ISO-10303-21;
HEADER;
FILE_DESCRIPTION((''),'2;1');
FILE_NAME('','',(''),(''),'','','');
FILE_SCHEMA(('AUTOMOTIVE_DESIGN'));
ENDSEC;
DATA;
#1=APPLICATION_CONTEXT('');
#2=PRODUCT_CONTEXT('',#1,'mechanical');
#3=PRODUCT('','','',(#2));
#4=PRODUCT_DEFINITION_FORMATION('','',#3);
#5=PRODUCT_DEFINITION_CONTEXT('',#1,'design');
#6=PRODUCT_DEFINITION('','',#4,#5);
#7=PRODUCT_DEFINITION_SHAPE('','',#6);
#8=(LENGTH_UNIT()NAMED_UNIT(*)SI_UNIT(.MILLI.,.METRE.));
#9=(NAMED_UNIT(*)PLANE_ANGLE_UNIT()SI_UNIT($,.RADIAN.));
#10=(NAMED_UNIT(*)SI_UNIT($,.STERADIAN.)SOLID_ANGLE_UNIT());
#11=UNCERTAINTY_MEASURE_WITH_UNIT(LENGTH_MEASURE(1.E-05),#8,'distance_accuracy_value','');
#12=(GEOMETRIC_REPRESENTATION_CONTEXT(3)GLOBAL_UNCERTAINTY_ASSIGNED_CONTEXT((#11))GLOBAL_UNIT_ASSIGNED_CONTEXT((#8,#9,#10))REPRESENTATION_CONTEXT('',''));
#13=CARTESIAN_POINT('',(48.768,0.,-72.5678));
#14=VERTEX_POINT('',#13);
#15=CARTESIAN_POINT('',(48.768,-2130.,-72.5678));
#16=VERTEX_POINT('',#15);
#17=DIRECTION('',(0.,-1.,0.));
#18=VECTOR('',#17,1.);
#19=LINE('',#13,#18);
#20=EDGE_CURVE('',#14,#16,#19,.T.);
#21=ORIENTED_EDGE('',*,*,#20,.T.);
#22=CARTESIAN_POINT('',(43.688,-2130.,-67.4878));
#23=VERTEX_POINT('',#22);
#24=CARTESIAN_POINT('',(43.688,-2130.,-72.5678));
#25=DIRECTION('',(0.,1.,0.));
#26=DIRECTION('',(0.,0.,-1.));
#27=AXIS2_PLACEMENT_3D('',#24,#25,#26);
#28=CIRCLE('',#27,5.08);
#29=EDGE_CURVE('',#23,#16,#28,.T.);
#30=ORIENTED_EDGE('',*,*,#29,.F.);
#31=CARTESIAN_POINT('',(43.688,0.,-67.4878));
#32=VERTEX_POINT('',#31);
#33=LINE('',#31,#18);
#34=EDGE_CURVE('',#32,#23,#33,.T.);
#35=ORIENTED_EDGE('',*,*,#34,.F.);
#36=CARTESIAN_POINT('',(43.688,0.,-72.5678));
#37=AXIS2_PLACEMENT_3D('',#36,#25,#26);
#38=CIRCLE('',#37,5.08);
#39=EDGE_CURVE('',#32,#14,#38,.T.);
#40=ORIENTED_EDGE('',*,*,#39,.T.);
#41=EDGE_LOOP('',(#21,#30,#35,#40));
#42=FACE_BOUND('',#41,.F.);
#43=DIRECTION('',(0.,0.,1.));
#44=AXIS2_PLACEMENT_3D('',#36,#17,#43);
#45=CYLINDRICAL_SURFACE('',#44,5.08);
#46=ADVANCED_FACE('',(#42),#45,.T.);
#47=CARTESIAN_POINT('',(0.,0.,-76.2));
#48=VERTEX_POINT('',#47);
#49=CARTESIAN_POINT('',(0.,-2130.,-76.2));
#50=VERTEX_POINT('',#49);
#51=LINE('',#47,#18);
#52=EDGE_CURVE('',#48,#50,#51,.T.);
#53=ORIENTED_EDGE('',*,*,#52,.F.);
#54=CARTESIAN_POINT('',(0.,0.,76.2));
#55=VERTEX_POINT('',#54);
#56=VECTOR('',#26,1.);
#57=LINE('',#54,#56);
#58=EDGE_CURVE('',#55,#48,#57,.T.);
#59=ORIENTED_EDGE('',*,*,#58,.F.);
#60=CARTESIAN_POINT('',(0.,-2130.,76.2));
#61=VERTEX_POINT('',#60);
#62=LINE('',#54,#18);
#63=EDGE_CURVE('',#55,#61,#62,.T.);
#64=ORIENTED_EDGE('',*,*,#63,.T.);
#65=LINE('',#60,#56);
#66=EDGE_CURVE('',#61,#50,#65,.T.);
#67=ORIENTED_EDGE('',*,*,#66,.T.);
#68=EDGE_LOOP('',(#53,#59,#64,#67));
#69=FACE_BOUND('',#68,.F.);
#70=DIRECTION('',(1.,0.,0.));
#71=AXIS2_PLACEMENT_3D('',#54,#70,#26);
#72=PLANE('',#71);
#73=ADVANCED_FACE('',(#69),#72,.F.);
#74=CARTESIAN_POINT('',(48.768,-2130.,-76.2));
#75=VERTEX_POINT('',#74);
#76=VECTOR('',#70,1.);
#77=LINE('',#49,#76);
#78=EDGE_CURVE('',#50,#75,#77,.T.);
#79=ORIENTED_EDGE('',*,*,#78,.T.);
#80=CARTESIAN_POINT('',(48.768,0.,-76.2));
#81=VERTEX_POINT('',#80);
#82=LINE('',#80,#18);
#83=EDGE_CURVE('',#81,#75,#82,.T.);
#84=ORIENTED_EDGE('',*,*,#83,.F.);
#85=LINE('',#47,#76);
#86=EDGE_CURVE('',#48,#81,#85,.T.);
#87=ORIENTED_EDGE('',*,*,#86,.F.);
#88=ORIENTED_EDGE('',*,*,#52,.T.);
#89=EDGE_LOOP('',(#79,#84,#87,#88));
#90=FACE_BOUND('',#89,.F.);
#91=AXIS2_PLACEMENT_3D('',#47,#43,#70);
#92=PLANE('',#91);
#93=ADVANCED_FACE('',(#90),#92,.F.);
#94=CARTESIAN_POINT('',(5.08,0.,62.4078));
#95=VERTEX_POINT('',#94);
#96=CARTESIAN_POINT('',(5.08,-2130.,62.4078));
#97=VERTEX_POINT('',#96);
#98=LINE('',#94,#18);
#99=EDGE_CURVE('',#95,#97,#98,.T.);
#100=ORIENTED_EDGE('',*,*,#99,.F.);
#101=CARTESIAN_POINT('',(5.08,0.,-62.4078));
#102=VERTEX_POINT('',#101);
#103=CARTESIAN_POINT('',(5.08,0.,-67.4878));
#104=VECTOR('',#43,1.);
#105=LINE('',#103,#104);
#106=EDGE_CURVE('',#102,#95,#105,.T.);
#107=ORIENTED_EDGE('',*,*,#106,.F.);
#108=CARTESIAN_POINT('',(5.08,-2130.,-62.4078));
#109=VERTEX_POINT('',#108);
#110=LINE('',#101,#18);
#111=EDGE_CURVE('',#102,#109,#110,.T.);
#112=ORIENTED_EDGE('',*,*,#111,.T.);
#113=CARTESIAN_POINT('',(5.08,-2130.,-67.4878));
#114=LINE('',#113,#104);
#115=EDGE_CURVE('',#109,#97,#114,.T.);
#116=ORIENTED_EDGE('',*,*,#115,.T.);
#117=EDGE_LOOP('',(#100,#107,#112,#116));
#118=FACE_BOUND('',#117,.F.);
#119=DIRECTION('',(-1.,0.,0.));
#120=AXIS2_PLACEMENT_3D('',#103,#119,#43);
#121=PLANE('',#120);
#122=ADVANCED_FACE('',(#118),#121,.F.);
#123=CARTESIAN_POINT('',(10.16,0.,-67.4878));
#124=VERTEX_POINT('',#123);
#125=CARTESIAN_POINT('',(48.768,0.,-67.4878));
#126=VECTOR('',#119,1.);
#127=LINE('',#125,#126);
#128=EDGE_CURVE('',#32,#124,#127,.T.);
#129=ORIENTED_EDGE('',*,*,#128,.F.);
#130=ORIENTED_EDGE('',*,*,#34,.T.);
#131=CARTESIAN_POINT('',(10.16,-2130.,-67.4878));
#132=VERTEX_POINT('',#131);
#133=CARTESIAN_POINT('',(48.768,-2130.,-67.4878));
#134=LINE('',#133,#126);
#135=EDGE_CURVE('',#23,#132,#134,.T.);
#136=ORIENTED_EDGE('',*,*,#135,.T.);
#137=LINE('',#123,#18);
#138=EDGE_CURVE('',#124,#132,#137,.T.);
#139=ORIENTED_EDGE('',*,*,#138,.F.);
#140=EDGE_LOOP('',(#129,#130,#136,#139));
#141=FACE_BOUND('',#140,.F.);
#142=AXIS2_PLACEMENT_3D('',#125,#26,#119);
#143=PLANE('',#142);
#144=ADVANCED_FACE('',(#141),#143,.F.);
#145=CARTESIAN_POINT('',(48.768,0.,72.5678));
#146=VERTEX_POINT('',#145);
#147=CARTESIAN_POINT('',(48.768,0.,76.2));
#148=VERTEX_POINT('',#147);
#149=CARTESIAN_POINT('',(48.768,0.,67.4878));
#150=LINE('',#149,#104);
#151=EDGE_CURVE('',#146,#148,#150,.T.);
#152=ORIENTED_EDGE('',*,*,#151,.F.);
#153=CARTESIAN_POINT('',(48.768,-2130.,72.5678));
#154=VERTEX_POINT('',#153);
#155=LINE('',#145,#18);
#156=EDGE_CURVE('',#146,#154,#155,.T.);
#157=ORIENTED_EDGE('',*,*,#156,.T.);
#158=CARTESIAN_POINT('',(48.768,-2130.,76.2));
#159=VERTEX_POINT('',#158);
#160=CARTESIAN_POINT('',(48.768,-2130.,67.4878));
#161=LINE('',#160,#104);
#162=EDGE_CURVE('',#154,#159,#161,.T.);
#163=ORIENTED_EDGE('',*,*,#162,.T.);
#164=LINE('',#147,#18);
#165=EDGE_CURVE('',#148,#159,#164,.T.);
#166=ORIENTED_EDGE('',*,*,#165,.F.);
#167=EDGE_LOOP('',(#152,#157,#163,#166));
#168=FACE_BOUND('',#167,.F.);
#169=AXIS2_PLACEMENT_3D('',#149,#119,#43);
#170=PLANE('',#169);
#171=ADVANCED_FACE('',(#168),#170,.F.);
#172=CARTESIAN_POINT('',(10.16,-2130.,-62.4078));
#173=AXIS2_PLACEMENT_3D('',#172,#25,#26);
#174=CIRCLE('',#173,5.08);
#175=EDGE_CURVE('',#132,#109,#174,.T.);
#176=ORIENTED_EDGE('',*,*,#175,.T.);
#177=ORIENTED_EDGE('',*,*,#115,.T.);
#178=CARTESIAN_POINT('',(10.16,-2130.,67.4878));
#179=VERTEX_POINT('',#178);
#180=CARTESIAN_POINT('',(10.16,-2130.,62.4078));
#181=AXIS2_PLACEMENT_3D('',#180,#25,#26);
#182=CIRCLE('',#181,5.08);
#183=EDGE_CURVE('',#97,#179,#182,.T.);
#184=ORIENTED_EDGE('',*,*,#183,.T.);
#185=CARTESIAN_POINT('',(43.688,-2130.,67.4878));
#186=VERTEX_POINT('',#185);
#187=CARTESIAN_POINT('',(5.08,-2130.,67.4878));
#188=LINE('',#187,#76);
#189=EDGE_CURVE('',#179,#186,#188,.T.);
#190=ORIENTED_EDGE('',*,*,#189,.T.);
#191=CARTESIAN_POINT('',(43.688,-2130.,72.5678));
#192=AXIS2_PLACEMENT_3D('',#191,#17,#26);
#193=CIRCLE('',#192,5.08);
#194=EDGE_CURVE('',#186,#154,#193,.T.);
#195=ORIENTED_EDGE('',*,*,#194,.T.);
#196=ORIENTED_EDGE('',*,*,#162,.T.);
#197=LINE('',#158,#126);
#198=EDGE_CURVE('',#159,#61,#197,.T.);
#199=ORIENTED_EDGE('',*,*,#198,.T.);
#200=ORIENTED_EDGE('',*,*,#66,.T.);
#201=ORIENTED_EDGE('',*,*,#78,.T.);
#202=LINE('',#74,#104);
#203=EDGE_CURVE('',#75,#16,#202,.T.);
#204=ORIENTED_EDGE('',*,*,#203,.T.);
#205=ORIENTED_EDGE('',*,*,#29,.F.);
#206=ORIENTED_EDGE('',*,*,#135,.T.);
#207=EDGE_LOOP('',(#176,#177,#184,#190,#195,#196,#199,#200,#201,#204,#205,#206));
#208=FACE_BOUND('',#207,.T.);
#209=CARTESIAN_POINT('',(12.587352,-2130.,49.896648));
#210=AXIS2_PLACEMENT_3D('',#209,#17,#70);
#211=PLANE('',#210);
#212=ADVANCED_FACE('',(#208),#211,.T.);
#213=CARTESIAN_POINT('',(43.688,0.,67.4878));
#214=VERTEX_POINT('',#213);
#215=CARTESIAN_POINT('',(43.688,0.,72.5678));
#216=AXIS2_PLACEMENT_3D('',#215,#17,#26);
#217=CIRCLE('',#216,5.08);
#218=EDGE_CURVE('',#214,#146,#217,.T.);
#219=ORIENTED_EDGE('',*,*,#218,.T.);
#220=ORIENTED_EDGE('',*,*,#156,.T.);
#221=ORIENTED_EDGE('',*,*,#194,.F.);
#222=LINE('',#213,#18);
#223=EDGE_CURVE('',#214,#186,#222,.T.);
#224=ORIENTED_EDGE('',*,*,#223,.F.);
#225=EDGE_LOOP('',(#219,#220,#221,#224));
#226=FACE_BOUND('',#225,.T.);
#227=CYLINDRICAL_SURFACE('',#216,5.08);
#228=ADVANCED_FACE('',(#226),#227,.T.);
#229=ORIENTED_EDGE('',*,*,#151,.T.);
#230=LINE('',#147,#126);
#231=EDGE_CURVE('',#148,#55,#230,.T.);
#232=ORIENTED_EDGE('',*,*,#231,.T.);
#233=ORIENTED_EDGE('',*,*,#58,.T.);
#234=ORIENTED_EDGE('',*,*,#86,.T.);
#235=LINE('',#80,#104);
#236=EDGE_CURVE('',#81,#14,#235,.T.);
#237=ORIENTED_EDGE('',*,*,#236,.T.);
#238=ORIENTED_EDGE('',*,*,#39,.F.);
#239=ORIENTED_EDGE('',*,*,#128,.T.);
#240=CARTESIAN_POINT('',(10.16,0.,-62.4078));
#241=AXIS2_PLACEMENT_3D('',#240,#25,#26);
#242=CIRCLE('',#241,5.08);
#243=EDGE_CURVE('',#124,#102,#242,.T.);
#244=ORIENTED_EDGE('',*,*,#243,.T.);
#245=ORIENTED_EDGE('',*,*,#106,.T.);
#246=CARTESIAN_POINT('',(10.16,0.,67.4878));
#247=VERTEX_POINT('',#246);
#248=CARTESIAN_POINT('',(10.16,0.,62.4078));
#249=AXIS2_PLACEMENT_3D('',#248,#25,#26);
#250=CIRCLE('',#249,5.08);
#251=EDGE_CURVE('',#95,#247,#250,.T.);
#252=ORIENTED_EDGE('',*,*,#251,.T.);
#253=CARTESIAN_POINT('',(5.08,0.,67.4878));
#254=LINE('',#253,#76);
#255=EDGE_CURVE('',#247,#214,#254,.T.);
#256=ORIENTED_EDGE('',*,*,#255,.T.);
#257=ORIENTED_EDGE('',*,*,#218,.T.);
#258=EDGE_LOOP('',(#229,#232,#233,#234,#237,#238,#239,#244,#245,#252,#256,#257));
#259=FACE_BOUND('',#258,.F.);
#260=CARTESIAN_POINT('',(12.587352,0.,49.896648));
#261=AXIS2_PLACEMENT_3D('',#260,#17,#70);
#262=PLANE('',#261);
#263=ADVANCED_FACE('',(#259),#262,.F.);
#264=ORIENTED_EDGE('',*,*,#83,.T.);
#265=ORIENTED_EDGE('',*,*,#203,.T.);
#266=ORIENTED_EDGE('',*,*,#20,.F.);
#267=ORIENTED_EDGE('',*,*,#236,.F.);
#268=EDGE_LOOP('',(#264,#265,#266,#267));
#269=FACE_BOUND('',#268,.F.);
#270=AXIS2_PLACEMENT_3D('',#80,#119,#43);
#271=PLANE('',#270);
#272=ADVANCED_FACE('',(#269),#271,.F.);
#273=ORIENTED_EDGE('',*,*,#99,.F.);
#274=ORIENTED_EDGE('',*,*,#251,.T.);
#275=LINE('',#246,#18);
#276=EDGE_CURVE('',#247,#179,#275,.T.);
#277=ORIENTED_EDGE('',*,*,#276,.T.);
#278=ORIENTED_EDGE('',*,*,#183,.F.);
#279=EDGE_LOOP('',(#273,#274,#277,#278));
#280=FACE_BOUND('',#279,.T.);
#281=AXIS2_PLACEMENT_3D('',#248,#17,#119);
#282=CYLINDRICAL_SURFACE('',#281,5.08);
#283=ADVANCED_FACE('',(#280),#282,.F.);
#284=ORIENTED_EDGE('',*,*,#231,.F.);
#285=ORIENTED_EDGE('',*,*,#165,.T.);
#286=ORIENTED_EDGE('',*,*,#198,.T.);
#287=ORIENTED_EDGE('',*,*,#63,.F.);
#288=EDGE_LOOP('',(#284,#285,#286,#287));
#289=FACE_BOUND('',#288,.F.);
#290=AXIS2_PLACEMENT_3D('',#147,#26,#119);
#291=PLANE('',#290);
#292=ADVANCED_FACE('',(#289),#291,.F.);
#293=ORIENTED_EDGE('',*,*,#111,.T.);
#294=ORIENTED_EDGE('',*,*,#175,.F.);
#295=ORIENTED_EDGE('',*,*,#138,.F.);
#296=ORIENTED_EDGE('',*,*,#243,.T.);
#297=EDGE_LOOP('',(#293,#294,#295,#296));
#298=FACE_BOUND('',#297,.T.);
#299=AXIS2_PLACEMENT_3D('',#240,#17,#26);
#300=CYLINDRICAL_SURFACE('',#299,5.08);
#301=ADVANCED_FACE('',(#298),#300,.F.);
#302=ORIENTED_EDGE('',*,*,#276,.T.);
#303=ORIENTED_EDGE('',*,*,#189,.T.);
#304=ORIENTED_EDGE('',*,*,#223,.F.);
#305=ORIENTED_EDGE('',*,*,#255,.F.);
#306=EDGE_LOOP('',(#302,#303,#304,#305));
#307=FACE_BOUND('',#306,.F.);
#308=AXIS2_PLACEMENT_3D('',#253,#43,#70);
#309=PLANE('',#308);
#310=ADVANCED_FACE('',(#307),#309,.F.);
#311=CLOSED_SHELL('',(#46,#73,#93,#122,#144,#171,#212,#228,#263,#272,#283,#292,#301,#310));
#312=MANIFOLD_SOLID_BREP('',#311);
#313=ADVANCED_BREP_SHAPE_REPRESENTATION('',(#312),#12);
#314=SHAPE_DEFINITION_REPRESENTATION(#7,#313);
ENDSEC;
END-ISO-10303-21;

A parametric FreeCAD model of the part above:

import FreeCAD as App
import Part
import Sketcher
Q = App.Units.Quantity


def edges_at(feature, points):
    """Names of the edges that pass closest to the given points."""
    edges = feature.Shape.Edges
    near = lambda p: min(range(len(edges)), key=lambda i: edges[i].distToShape(Part.Vertex(*p))[0])
    return sorted({f"Edge{near(p) + 1}" for p in points})

doc = App.newDocument("Part")
body = doc.addObject("PartDesign::Body", "Body")

# Sketch on XZ plane
sketch1 = body.newObject("Sketcher::SketchObject", "Sketch")
sketch1.AttachmentSupport = (doc.getObject("XZ_Plane"), [""])
sketch1.MapMode = "FlatFace"
sketch1.addGeometry(Part.LineSegment(App.Vector(48.768, 76.2, 0), App.Vector(0, 76.2, 0)), False)
sketch1.addGeometry(Part.LineSegment(App.Vector(0, 76.2, 0), App.Vector(0, -76.2, 0)), False)
sketch1.addGeometry(Part.LineSegment(App.Vector(0, -76.2, 0), App.Vector(48.768, -76.2, 0)), False)
sketch1.addGeometry(Part.LineSegment(App.Vector(48.768, -76.2, 0), App.Vector(48.768, -67.4878, 0)), False)
sketch1.addGeometry(Part.LineSegment(App.Vector(48.768, -67.4878, 0), App.Vector(5.08, -67.4878, 0)), False)
sketch1.addGeometry(Part.LineSegment(App.Vector(5.08, -67.4878, 0), App.Vector(5.08, 67.4878, 0)), False)
sketch1.addGeometry(Part.LineSegment(App.Vector(5.08, 67.4878, 0), App.Vector(48.768, 67.4878, 0)), False)
sketch1.addGeometry(Part.LineSegment(App.Vector(48.768, 67.4878, 0), App.Vector(48.768, 76.2, 0)), False)
sketch1.addConstraint(Sketcher.Constraint("Coincident", 0, 2, 1, 1))
sketch1.addConstraint(Sketcher.Constraint("Coincident", 1, 2, 2, 1))
sketch1.addConstraint(Sketcher.Constraint("Coincident", 2, 2, 3, 1))
sketch1.addConstraint(Sketcher.Constraint("Coincident", 3, 2, 4, 1))
sketch1.addConstraint(Sketcher.Constraint("Coincident", 4, 2, 5, 1))
sketch1.addConstraint(Sketcher.Constraint("Coincident", 5, 2, 6, 1))
sketch1.addConstraint(Sketcher.Constraint("Coincident", 6, 2, 7, 1))
sketch1.addConstraint(Sketcher.Constraint("Coincident", 7, 2, 0, 1))
sketch1.addConstraint(Sketcher.Constraint("Horizontal", 0))
sketch1.addConstraint(Sketcher.Constraint("Vertical", 1))
sketch1.addConstraint(Sketcher.Constraint("Horizontal", 2))
sketch1.addConstraint(Sketcher.Constraint("Vertical", 3))
sketch1.addConstraint(Sketcher.Constraint("Horizontal", 4))
sketch1.addConstraint(Sketcher.Constraint("Vertical", 5))
sketch1.addConstraint(Sketcher.Constraint("Horizontal", 6))
sketch1.addConstraint(Sketcher.Constraint("Vertical", 7))
sketch1.addConstraint(Sketcher.Constraint("Symmetric", 0, 2, 1, 2, -1, 1))
sketch1.addConstraint(Sketcher.Constraint("Symmetric", 3, 2, 6, 2, -1))
sketch1.addConstraint(Sketcher.Constraint("DistanceY", 1, 2, 1, 1, Q("6 in")))
sketch1.addConstraint(Sketcher.Constraint("DistanceX", 0, 2, 0, 1, Q("1.92 in")))
sketch1.addConstraint(Sketcher.Constraint("DistanceX", 4, 2, 4, 1, Q("1.72 in")))
sketch1.addConstraint(Sketcher.Constraint("DistanceY", 3, 1, 3, 2, Q("0.343 in")))
pad1 = body.newObject("PartDesign::Pad", "Pad")
pad1.Profile = sketch1
pad1.Length = 2130
doc.recompute()

fillet = body.newObject("PartDesign::Fillet", "Fillet")
fillet.Base = (pad1, edges_at(pad1, [(5.08, -1065, -67.488), (5.08, -1065, 67.488)]))
fillet.Radius = Q("0.2 in")
doc.recompute()

fillet2 = body.newObject("PartDesign::Fillet", "Fillet001")
fillet2.Base = (fillet, edges_at(fillet, [(48.768, -1065, 67.488), (48.768, -1065, -67.488)]))
fillet2.Radius = Q("0.2 in")

doc.recompute()
